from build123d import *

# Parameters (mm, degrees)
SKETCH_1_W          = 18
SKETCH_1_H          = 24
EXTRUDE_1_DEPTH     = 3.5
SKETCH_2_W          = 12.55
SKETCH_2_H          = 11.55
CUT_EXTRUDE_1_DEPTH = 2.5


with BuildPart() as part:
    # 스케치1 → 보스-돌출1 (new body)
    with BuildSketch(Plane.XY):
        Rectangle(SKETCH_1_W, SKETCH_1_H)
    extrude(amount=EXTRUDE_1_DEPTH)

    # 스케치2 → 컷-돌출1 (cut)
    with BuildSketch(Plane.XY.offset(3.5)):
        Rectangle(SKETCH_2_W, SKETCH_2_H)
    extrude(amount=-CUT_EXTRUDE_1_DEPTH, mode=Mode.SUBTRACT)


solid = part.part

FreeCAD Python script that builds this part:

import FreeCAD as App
import Part
import Sketcher
from FreeCAD import Vector


def add_polygon(sketch, points):
    """Adds a closed chain of lines whose ends are joined by coincident constraints."""
    first, n = sketch.GeometryCount, len(points)
    for a, b in zip(points, points[1:] + points[:1]):
        sketch.addGeometry(Part.LineSegment(App.Vector(*a, 0), App.Vector(*b, 0)), False)
    for i in range(n):
        sketch.addConstraint(Sketcher.Constraint("Coincident", first + i, 2, first + (i + 1) % n, 1))

doc = App.newDocument("Part")
body = doc.addObject("PartDesign::Body", "Body")

# Sketch on XY plane
sketch1 = body.newObject("Sketcher::SketchObject", "Sketch")
sketch1.AttachmentSupport = (doc.getObject("XY_Plane"), [""])
sketch1.MapMode = "FlatFace"
add_polygon(sketch1, [(-9, 12), (-9, -12), (9, -12), (9, 12)])  # lines 0-3
sketch1.addConstraint([
    Sketcher.Constraint("Vertical", 0),
    Sketcher.Constraint("Horizontal", 1),
    Sketcher.Constraint("Vertical", 2),
    Sketcher.Constraint("Horizontal", 3),
    Sketcher.Constraint("Symmetric", 0, 2, 2, 2, -1, 1),
    Sketcher.Constraint("DistanceX", 1, 1, 1, 2, 18.0),
    Sketcher.Constraint("DistanceY", 0, 2, 0, 1, 24.0),
])
pad1 = body.newObject("PartDesign::Pad", "Pad")
pad1.Profile = sketch1
pad1.Length = 3.5

# Sketch on XY plane
sketch2 = body.newObject("Sketcher::SketchObject", "Sketch001")
sketch2.AttachmentSupport = (doc.getObject("XY_Plane"), [""])
sketch2.MapMode = "FlatFace"
sketch2.AttachmentOffset = App.Placement(Vector(0, 0, 3.5), App.Rotation())
add_polygon(sketch2, [(-6.275, 5.775), (-6.275, -5.775), (6.275, -5.775), (6.275, 5.775)])  # lines 0-3
sketch2.addConstraint([
    Sketcher.Constraint("Vertical", 0),
    Sketcher.Constraint("Horizontal", 1),
    Sketcher.Constraint("Vertical", 2),
    Sketcher.Constraint("Horizontal", 3),
    Sketcher.Constraint("Symmetric", 0, 2, 2, 2, -1, 1),
    Sketcher.Constraint("DistanceX", 1, 1, 1, 2, 12.55),
    Sketcher.Constraint("DistanceY", 0, 2, 0, 1, 11.55),
])
pocket1 = body.newObject("PartDesign::Pocket", "Pocket")
pocket1.Profile = sketch2
pocket1.Length = 2.5

doc.recompute()
